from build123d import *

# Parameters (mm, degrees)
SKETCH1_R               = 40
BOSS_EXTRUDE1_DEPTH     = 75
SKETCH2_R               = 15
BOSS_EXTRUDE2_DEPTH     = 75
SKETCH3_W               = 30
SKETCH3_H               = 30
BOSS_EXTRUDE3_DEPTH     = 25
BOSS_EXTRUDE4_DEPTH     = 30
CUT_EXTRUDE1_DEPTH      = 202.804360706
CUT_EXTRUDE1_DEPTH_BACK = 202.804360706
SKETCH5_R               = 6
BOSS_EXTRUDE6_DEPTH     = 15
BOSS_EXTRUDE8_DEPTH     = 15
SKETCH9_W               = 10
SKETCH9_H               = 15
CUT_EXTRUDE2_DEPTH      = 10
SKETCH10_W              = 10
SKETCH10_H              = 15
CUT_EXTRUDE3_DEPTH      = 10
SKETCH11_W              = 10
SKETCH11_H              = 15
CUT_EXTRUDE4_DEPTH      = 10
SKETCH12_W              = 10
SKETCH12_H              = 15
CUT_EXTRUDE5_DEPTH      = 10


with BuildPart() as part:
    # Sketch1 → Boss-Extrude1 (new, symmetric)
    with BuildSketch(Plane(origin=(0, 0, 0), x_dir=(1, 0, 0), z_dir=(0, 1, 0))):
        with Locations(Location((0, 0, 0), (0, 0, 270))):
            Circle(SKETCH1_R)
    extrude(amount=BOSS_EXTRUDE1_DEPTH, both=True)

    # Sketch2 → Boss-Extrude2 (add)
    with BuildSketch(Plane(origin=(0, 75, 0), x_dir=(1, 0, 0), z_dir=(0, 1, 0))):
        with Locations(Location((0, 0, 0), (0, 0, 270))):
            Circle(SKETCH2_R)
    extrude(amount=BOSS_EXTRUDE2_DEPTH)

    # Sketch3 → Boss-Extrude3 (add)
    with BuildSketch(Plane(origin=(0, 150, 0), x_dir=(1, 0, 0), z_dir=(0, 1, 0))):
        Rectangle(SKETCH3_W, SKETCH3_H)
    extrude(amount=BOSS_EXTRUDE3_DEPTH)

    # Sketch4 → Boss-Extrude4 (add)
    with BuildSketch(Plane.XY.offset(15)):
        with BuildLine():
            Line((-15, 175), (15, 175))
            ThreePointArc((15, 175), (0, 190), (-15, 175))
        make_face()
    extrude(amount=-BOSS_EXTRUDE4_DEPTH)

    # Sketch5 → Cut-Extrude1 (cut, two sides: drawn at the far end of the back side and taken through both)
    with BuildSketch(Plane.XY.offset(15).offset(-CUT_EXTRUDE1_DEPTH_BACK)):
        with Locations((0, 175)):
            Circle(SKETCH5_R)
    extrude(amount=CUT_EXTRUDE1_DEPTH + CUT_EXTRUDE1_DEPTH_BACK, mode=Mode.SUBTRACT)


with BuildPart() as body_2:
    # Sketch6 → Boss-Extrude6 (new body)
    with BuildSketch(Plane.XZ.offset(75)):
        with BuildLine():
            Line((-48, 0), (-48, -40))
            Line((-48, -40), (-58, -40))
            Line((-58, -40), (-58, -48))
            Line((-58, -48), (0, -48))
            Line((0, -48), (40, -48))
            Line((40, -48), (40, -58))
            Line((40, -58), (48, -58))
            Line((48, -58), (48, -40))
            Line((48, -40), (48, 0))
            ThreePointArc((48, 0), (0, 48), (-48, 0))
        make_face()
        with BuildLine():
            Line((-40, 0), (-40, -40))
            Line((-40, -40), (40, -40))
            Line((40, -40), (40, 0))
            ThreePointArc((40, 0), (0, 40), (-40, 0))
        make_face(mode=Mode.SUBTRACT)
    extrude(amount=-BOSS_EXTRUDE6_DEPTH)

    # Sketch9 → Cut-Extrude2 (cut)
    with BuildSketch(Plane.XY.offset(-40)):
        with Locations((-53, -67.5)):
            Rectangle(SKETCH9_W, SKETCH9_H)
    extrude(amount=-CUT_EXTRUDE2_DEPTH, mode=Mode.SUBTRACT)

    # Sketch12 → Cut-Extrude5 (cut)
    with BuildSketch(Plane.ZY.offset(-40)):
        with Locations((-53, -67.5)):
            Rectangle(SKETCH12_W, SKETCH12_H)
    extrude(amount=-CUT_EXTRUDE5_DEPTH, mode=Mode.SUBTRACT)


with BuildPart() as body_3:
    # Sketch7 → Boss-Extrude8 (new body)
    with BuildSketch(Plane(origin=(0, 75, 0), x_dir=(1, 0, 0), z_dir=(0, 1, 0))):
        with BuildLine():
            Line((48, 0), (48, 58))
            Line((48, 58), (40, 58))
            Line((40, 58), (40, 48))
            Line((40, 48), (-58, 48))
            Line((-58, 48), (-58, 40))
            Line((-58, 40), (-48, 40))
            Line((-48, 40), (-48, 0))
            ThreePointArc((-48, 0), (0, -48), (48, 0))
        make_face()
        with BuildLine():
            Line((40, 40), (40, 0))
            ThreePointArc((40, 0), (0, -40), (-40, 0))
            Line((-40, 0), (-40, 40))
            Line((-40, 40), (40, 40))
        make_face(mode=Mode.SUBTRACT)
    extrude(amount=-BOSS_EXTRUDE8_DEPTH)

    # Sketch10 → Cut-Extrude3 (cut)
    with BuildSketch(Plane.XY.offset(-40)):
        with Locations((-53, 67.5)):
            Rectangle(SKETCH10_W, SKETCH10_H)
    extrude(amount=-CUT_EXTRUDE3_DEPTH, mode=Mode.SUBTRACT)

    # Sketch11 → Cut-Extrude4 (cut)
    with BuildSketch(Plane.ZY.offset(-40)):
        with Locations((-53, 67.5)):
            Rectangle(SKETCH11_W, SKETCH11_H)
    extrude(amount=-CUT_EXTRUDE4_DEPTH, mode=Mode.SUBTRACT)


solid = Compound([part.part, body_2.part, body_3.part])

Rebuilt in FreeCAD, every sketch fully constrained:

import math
import FreeCAD as App
import Part
import Sketcher
Q = App.Units.Quantity

doc = App.newDocument("Part")
body = doc.addObject("PartDesign::Body", "Body")

# Sketch on XZ plane
sketch1 = body.newObject("Sketcher::SketchObject", "Sketch")
sketch1.AttachmentSupport = (doc.getObject("XZ_Plane"), [""])
sketch1.MapMode = "FlatFace"
sketch1.addGeometry(Part.Circle(App.Vector(0, 0, 0), App.Vector(0, 0, 1), 40), False)
sketch1.addConstraint([
    Sketcher.Constraint("Coincident", 0, 3, -1, 1),
    Sketcher.Constraint("Diameter", 0, Q("80 mm")),
])
pad1 = body.newObject("PartDesign::Pad", "Pad")
pad1.Profile = sketch1
pad1.Length = 150
pad1.Midplane = True

# Sketch on XZ plane
sketch2 = body.newObject("Sketcher::SketchObject", "Sketch001")
sketch2.AttachmentSupport = (doc.getObject("XZ_Plane"), [""])
sketch2.MapMode = "FlatFace"
sketch2.AttachmentOffset = App.Placement(App.Vector(0, 0, -75), App.Rotation())
sketch2.addGeometry(Part.Circle(App.Vector(0, 0, 0), App.Vector(0, 0, 1), 15), False)
sketch2.addConstraint([
    Sketcher.Constraint("Coincident", 0, 3, -1, 1),
    Sketcher.Constraint("Diameter", 0, Q("30 mm")),
])
pad2 = body.newObject("PartDesign::Pad", "Pad001")
pad2.Profile = sketch2
pad2.Length = 75
pad2.Reversed = True

# Sketch on XZ plane
sketch3 = body.newObject("Sketcher::SketchObject", "Sketch002")
sketch3.AttachmentSupport = (doc.getObject("XZ_Plane"), [""])
sketch3.MapMode = "FlatFace"
sketch3.AttachmentOffset = App.Placement(App.Vector(0, 0, -150), App.Rotation())
sketch3.addGeometry([
    Part.LineSegment(App.Vector(-15, -15, 0), App.Vector(-15, 15, 0)),
    Part.LineSegment(App.Vector(-15, 15, 0), App.Vector(15, 15, 0)),
    Part.LineSegment(App.Vector(15, 15, 0), App.Vector(15, -15, 0)),
    Part.LineSegment(App.Vector(15, -15, 0), App.Vector(-15, -15, 0)),
], False)
sketch3.addConstraint([
    Sketcher.Constraint("Coincident", 0, 2, 1, 1),
    Sketcher.Constraint("Coincident", 1, 2, 2, 1),
    Sketcher.Constraint("Coincident", 2, 2, 3, 1),
    Sketcher.Constraint("Coincident", 3, 2, 0, 1),
    Sketcher.Constraint("Vertical", 0),
    Sketcher.Constraint("Horizontal", 1),
    Sketcher.Constraint("Vertical", 2),
    Sketcher.Constraint("Horizontal", 3),
    Sketcher.Constraint("Symmetric", 0, 2, 2, 2, -1, 1),
    Sketcher.Constraint("Equal", 3, 0),
    Sketcher.Constraint("DistanceX", 1, 1, 1, 2, Q("30 mm")),
])
pad3 = body.newObject("PartDesign::Pad", "Pad002")
pad3.Profile = sketch3
pad3.Length = 25
pad3.Reversed = True

# Sketch on XY plane
sketch4 = body.newObject("Sketcher::SketchObject", "Sketch003")
sketch4.AttachmentSupport = (doc.getObject("XY_Plane"), [""])
sketch4.MapMode = "FlatFace"
sketch4.AttachmentOffset = App.Placement(App.Vector(0, 0, 15), App.Rotation())
sketch4.addGeometry([
    Part.LineSegment(App.Vector(-15, 175, 0), App.Vector(15, 175, 0)),
    Part.ArcOfCircle(Part.Circle(App.Vector(0, 175, 0), App.Vector(0, 0, 1), 15), math.radians(0), math.radians(180)),
], False)
sketch4.addConstraint([
    Sketcher.Constraint("Coincident", 0, 1, 1, 2),
    Sketcher.Constraint("Coincident", 1, 1, 0, 2),
    Sketcher.Constraint("Horizontal", 0),
    Sketcher.Constraint("PointOnObject", 1, 3, -2),
    Sketcher.Constraint("Horizontal", 1, 3, 0, 1),
    Sketcher.Constraint("Radius", 1, Q("15 mm")),
    Sketcher.Constraint("DistanceY", -1, 1, 1, 3, Q("175 mm")),
])
pad4 = body.newObject("PartDesign::Pad", "Pad003")
pad4.Profile = sketch4
pad4.Length = 30
pad4.Reversed = True

# Sketch on XY plane
sketch5 = body.newObject("Sketcher::SketchObject", "Sketch004")
sketch5.AttachmentSupport = (doc.getObject("XY_Plane"), [""])
sketch5.MapMode = "FlatFace"
sketch5.AttachmentOffset = App.Placement(App.Vector(0, 0, 15), App.Rotation())
sketch5.addGeometry(Part.Circle(App.Vector(0, 175, 0), App.Vector(0, 0, 1), 6), False)
sketch5.addConstraint([
    Sketcher.Constraint("PointOnObject", 0, 3, -2),
    Sketcher.Constraint("Diameter", 0, Q("12 mm")),
    Sketcher.Constraint("DistanceY", -1, 1, 0, 3, Q("175 mm")),
])
pocket1 = body.newObject("PartDesign::Pocket", "Pocket")
pocket1.Profile = sketch5
pocket1.Type = "ThroughAll"
pocket1.Midplane = True
body2 = doc.addObject("PartDesign::Body", "Body001")

# Sketch on XZ plane
sketch6 = body2.newObject("Sketcher::SketchObject", "Sketch005")
sketch6.AttachmentSupport = (doc.getObject("XZ_Plane001"), [""])
sketch6.MapMode = "FlatFace"
sketch6.AttachmentOffset = App.Placement(App.Vector(0, 0, 75), App.Rotation())
sketch6.addGeometry([
    Part.LineSegment(App.Vector(-48, 0, 0), App.Vector(-48, -40, 0)),  # 0
    Part.LineSegment(App.Vector(-48, -40, 0), App.Vector(-58, -40, 0)),  # 1
    Part.LineSegment(App.Vector(-58, -40, 0), App.Vector(-58, -48, 0)),  # 2
    Part.LineSegment(App.Vector(-58, -48, 0), App.Vector(40, -48, 0)),  # 3
    Part.LineSegment(App.Vector(40, -48, 0), App.Vector(40, -58, 0)),  # 4
    Part.LineSegment(App.Vector(40, -58, 0), App.Vector(48, -58, 0)),  # 5
    Part.LineSegment(App.Vector(48, -58, 0), App.Vector(48, 0, 0)),  # 6
    Part.ArcOfCircle(Part.Circle(App.Vector(0, 0, 0), App.Vector(0, 0, 1), 48), math.radians(0), math.radians(180)),  # 7
    Part.LineSegment(App.Vector(-40, -40, 0), App.Vector(-40, 0, 0)),  # 8
    Part.ArcOfCircle(Part.Circle(App.Vector(0, 0, 0), App.Vector(0, 0, 1), 40), math.radians(0), math.radians(180)),  # 9
    Part.LineSegment(App.Vector(40, 0, 0), App.Vector(40, -40, 0)),  # 10
    Part.LineSegment(App.Vector(40, -40, 0), App.Vector(-40, -40, 0)),  # 11
], False)
sketch6.addConstraint([
    Sketcher.Constraint("Coincident", 0, 2, 1, 1),
    Sketcher.Constraint("Coincident", 1, 2, 2, 1),
    Sketcher.Constraint("Coincident", 2, 2, 3, 1),
    Sketcher.Constraint("Coincident", 3, 2, 4, 1),
    Sketcher.Constraint("Coincident", 4, 2, 5, 1),
    Sketcher.Constraint("Coincident", 5, 2, 6, 1),
    Sketcher.Constraint("Tangent", 6, 2, 7, 1),
    Sketcher.Constraint("Tangent", 7, 2, 0, 1),
    Sketcher.Constraint("Tangent", 8, 2, 9, 2),
    Sketcher.Constraint("Tangent", 9, 1, 10, 1),
    Sketcher.Constraint("Coincident", 10, 2, 11, 1),
    Sketcher.Constraint("Coincident", 11, 2, 8, 1),
    Sketcher.Constraint("Vertical", 0),
    Sketcher.Constraint("Horizontal", 1),
    Sketcher.Constraint("Vertical", 2),
    Sketcher.Constraint("Horizontal", 3),
    Sketcher.Constraint("Vertical", 4),
    Sketcher.Constraint("Horizontal", 5),
    Sketcher.Constraint("Vertical", 6),
    Sketcher.Constraint("Vertical", 8),
    Sketcher.Constraint("Vertical", 10),
    Sketcher.Constraint("Horizontal", 11),
    Sketcher.Constraint("Coincident", 7, 3, -1, 1),
    Sketcher.Constraint("Coincident", 9, 3, -1, 1),
    Sketcher.Constraint("Horizontal", 1, 2, 10, 2),
    Sketcher.Constraint("Vertical", 4, 2, 9, 1),
    Sketcher.Constraint("Equal", 5, 2),
    Sketcher.Constraint("Equal", 1, 4),
    Sketcher.Constraint("Radius", 7, Q("48 mm")),
    Sketcher.Constraint("Radius", 9, Q("40 mm")),
    Sketcher.Constraint("DistanceX", 1, 2, 1, 1, Q("10 mm")),
    Sketcher.Constraint("DistanceY", 0, 2, 0, 1, Q("40 mm")),
])
pad5 = body2.newObject("PartDesign::Pad", "Pad004")
pad5.Profile = sketch6
pad5.Length = 15
pad5.Reversed = True

# Sketch on XY plane
sketch7 = body2.newObject("Sketcher::SketchObject", "Sketch006")
sketch7.AttachmentSupport = (doc.getObject("XY_Plane001"), [""])
sketch7.MapMode = "FlatFace"
sketch7.AttachmentOffset = App.Placement(App.Vector(0, 0, -40), App.Rotation())
sketch7.addGeometry([
    Part.LineSegment(App.Vector(-58, -60, 0), App.Vector(-58, -75, 0)),
    Part.LineSegment(App.Vector(-58, -75, 0), App.Vector(-48, -75, 0)),
    Part.LineSegment(App.Vector(-48, -75, 0), App.Vector(-48, -60, 0)),
    Part.LineSegment(App.Vector(-48, -60, 0), App.Vector(-58, -60, 0)),
], False)
sketch7.addConstraint([
    Sketcher.Constraint("Coincident", 0, 2, 1, 1),
    Sketcher.Constraint("Coincident", 1, 2, 2, 1),
    Sketcher.Constraint("Coincident", 2, 2, 3, 1),
    Sketcher.Constraint("Coincident", 3, 2, 0, 1),
    Sketcher.Constraint("Vertical", 0),
    Sketcher.Constraint("Horizontal", 1),
    Sketcher.Constraint("Vertical", 2),
    Sketcher.Constraint("Horizontal", 3),
    Sketcher.Constraint("DistanceX", 1, 1, 1, 2, Q("10 mm")),
    Sketcher.Constraint("DistanceY", 0, 2, 0, 1, Q("15 mm")),
    Sketcher.Constraint("DistanceX", 0, 2, -1, 1, Q("58 mm")),
    Sketcher.Constraint("DistanceY", 0, 2, -1, 1, Q("75 mm")),
])
pocket2 = body2.newObject("PartDesign::Pocket", "Pocket001")
pocket2.Profile = sketch7
pocket2.Length = 10

# Sketch on YZ plane
sketch8 = body2.newObject("Sketcher::SketchObject", "Sketch007")
sketch8.AttachmentSupport = (doc.getObject("YZ_Plane001"), [""])
sketch8.MapMode = "FlatFace"
sketch8.AttachmentOffset = App.Placement(App.Vector(0, 0, 40), App.Rotation())
sketch8.addGeometry([
    Part.LineSegment(App.Vector(-60, -58, 0), App.Vector(-75, -58, 0)),
    Part.LineSegment(App.Vector(-75, -58, 0), App.Vector(-75, -48, 0)),
    Part.LineSegment(App.Vector(-75, -48, 0), App.Vector(-60, -48, 0)),
    Part.LineSegment(App.Vector(-60, -48, 0), App.Vector(-60, -58, 0)),
], False)
sketch8.addConstraint([
    Sketcher.Constraint("Coincident", 0, 2, 1, 1),
    Sketcher.Constraint("Coincident", 1, 2, 2, 1),
    Sketcher.Constraint("Coincident", 2, 2, 3, 1),
    Sketcher.Constraint("Coincident", 3, 2, 0, 1),
    Sketcher.Constraint("Horizontal", 0),
    Sketcher.Constraint("Vertical", 1),
    Sketcher.Constraint("Horizontal", 2),
    Sketcher.Constraint("Vertical", 3),
    Sketcher.Constraint("DistanceX", 0, 2, 0, 1, Q("15 mm")),
    Sketcher.Constraint("DistanceY", 1, 1, 1, 2, Q("10 mm")),
    Sketcher.Constraint("DistanceX", 0, 2, -1, 1, Q("75 mm")),
    Sketcher.Constraint("DistanceY", 0, 2, -1, 1, Q("58 mm")),
])
pocket3 = body2.newObject("PartDesign::Pocket", "Pocket002")
pocket3.Profile = sketch8
pocket3.Length = 10
pocket3.Reversed = True
body3 = doc.addObject("PartDesign::Body", "Body002")

# Sketch on XZ plane
sketch9 = body3.newObject("Sketcher::SketchObject", "Sketch008")
sketch9.AttachmentSupport = (doc.getObject("XZ_Plane002"), [""])
sketch9.MapMode = "FlatFace"
sketch9.AttachmentOffset = App.Placement(App.Vector(0, 0, -75), App.Rotation())
sketch9.addGeometry([
    Part.LineSegment(App.Vector(48, 0, 0), App.Vector(48, -58, 0)),  # 0
    Part.LineSegment(App.Vector(48, -58, 0), App.Vector(40, -58, 0)),  # 1
    Part.LineSegment(App.Vector(40, -58, 0), App.Vector(40, -48, 0)),  # 2
    Part.LineSegment(App.Vector(40, -48, 0), App.Vector(-58, -48, 0)),  # 3
    Part.LineSegment(App.Vector(-58, -48, 0), App.Vector(-58, -40, 0)),  # 4
    Part.LineSegment(App.Vector(-58, -40, 0), App.Vector(-48, -40, 0)),  # 5
    Part.LineSegment(App.Vector(-48, -40, 0), App.Vector(-48, 0, 0)),  # 6
    Part.ArcOfCircle(Part.Circle(App.Vector(0, 0, 0), App.Vector(0, 0, 1), 48), math.radians(0), math.radians(180)),  # 7
    Part.LineSegment(App.Vector(-40, -40, 0), App.Vector(40, -40, 0)),  # 8
    Part.LineSegment(App.Vector(40, -40, 0), App.Vector(40, 0, 0)),  # 9
    Part.ArcOfCircle(Part.Circle(App.Vector(0, 0, 0), App.Vector(0, 0, 1), 40), math.radians(0), math.radians(180)),  # 10
    Part.LineSegment(App.Vector(-40, 0, 0), App.Vector(-40, -40, 0)),  # 11
], False)
sketch9.addConstraint([
    Sketcher.Constraint("Coincident", 0, 2, 1, 1),
    Sketcher.Constraint("Coincident", 1, 2, 2, 1),
    Sketcher.Constraint("Coincident", 2, 2, 3, 1),
    Sketcher.Constraint("Coincident", 3, 2, 4, 1),
    Sketcher.Constraint("Coincident", 4, 2, 5, 1),
    Sketcher.Constraint("Coincident", 5, 2, 6, 1),
    Sketcher.Constraint("Tangent", 6, 2, 7, 2),
    Sketcher.Constraint("Tangent", 7, 1, 0, 1),
    Sketcher.Constraint("Coincident", 8, 2, 9, 1),
    Sketcher.Constraint("Tangent", 9, 2, 10, 1),
    Sketcher.Constraint("Tangent", 10, 2, 11, 1),
    Sketcher.Constraint("Coincident", 11, 2, 8, 1),
    Sketcher.Constraint("Vertical", 0),
    Sketcher.Constraint("Horizontal", 1),
    Sketcher.Constraint("Vertical", 2),
    Sketcher.Constraint("Horizontal", 3),
    Sketcher.Constraint("Vertical", 4),
    Sketcher.Constraint("Horizontal", 5),
    Sketcher.Constraint("Vertical", 6),
    Sketcher.Constraint("Horizontal", 8),
    Sketcher.Constraint("Vertical", 9),
    Sketcher.Constraint("Vertical", 11),
    Sketcher.Constraint("Coincident", 7, 3, -1, 1),
    Sketcher.Constraint("Coincident", 10, 3, -1, 1),
    Sketcher.Constraint("Horizontal", 5, 2, 8, 2),
    Sketcher.Constraint("Vertical", 2, 2, 8, 2),
    Sketcher.Constraint("Equal", 5, 2),
    Sketcher.Constraint("Equal", 1, 4),
    Sketcher.Constraint("Radius", 7, Q("48 mm")),
    Sketcher.Constraint("Radius", 10, Q("40 mm")),
    Sketcher.Constraint("DistanceX", 3, 2, 3, 1, Q("98 mm")),
    Sketcher.Constraint("DistanceY", 0, 2, 0, 1, Q("58 mm")),
])
pad6 = body3.newObject("PartDesign::Pad", "Pad005")
pad6.Profile = sketch9
pad6.Length = 15

# Sketch on XY plane
sketch10 = body3.newObject("Sketcher::SketchObject", "Sketch009")
sketch10.AttachmentSupport = (doc.getObject("XY_Plane002"), [""])
sketch10.MapMode = "FlatFace"
sketch10.AttachmentOffset = App.Placement(App.Vector(0, 0, -40), App.Rotation())
sketch10.addGeometry([
    Part.LineSegment(App.Vector(-58, 75, 0), App.Vector(-58, 60, 0)),
    Part.LineSegment(App.Vector(-58, 60, 0), App.Vector(-48, 60, 0)),
    Part.LineSegment(App.Vector(-48, 60, 0), App.Vector(-48, 75, 0)),
    Part.LineSegment(App.Vector(-48, 75, 0), App.Vector(-58, 75, 0)),
], False)
sketch10.addConstraint([
    Sketcher.Constraint("Coincident", 0, 2, 1, 1),
    Sketcher.Constraint("Coincident", 1, 2, 2, 1),
    Sketcher.Constraint("Coincident", 2, 2, 3, 1),
    Sketcher.Constraint("Coincident", 3, 2, 0, 1),
    Sketcher.Constraint("Vertical", 0),
    Sketcher.Constraint("Horizontal", 1),
    Sketcher.Constraint("Vertical", 2),
    Sketcher.Constraint("Horizontal", 3),
    Sketcher.Constraint("DistanceX", 1, 1, 1, 2, Q("10 mm")),
    Sketcher.Constraint("DistanceY", 0, 2, 0, 1, Q("15 mm")),
    Sketcher.Constraint("DistanceX", 0, 2, -1, 1, Q("58 mm")),
    Sketcher.Constraint("DistanceY", -1, 1, 0, 2, Q("60 mm")),
])
pocket4 = body3.newObject("PartDesign::Pocket", "Pocket003")
pocket4.Profile = sketch10
pocket4.Length = 10

# Sketch on YZ plane
sketch11 = body3.newObject("Sketcher::SketchObject", "Sketch010")
sketch11.AttachmentSupport = (doc.getObject("YZ_Plane002"), [""])
sketch11.MapMode = "FlatFace"
sketch11.AttachmentOffset = App.Placement(App.Vector(0, 0, 40), App.Rotation())
sketch11.addGeometry([
    Part.LineSegment(App.Vector(75, -58, 0), App.Vector(60, -58, 0)),
    Part.LineSegment(App.Vector(60, -58, 0), App.Vector(60, -48, 0)),
    Part.LineSegment(App.Vector(60, -48, 0), App.Vector(75, -48, 0)),
    Part.LineSegment(App.Vector(75, -48, 0), App.Vector(75, -58, 0)),
], False)
sketch11.addConstraint([
    Sketcher.Constraint("Coincident", 0, 2, 1, 1),
    Sketcher.Constraint("Coincident", 1, 2, 2, 1),
    Sketcher.Constraint("Coincident", 2, 2, 3, 1),
    Sketcher.Constraint("Coincident", 3, 2, 0, 1),
    Sketcher.Constraint("Horizontal", 0),
    Sketcher.Constraint("Vertical", 1),
    Sketcher.Constraint("Horizontal", 2),
    Sketcher.Constraint("Vertical", 3),
    Sketcher.Constraint("DistanceX", 0, 2, 0, 1, Q("15 mm")),
    Sketcher.Constraint("DistanceY", 1, 1, 1, 2, Q("10 mm")),
    Sketcher.Constraint("DistanceX", -1, 1, 0, 2, Q("60 mm")),
    Sketcher.Constraint("DistanceY", 0, 2, -1, 1, Q("58 mm")),
])
pocket5 = body3.newObject("PartDesign::Pocket", "Pocket004")
pocket5.Profile = sketch11
pocket5.Length = 10
pocket5.Reversed = True

doc.recompute()
